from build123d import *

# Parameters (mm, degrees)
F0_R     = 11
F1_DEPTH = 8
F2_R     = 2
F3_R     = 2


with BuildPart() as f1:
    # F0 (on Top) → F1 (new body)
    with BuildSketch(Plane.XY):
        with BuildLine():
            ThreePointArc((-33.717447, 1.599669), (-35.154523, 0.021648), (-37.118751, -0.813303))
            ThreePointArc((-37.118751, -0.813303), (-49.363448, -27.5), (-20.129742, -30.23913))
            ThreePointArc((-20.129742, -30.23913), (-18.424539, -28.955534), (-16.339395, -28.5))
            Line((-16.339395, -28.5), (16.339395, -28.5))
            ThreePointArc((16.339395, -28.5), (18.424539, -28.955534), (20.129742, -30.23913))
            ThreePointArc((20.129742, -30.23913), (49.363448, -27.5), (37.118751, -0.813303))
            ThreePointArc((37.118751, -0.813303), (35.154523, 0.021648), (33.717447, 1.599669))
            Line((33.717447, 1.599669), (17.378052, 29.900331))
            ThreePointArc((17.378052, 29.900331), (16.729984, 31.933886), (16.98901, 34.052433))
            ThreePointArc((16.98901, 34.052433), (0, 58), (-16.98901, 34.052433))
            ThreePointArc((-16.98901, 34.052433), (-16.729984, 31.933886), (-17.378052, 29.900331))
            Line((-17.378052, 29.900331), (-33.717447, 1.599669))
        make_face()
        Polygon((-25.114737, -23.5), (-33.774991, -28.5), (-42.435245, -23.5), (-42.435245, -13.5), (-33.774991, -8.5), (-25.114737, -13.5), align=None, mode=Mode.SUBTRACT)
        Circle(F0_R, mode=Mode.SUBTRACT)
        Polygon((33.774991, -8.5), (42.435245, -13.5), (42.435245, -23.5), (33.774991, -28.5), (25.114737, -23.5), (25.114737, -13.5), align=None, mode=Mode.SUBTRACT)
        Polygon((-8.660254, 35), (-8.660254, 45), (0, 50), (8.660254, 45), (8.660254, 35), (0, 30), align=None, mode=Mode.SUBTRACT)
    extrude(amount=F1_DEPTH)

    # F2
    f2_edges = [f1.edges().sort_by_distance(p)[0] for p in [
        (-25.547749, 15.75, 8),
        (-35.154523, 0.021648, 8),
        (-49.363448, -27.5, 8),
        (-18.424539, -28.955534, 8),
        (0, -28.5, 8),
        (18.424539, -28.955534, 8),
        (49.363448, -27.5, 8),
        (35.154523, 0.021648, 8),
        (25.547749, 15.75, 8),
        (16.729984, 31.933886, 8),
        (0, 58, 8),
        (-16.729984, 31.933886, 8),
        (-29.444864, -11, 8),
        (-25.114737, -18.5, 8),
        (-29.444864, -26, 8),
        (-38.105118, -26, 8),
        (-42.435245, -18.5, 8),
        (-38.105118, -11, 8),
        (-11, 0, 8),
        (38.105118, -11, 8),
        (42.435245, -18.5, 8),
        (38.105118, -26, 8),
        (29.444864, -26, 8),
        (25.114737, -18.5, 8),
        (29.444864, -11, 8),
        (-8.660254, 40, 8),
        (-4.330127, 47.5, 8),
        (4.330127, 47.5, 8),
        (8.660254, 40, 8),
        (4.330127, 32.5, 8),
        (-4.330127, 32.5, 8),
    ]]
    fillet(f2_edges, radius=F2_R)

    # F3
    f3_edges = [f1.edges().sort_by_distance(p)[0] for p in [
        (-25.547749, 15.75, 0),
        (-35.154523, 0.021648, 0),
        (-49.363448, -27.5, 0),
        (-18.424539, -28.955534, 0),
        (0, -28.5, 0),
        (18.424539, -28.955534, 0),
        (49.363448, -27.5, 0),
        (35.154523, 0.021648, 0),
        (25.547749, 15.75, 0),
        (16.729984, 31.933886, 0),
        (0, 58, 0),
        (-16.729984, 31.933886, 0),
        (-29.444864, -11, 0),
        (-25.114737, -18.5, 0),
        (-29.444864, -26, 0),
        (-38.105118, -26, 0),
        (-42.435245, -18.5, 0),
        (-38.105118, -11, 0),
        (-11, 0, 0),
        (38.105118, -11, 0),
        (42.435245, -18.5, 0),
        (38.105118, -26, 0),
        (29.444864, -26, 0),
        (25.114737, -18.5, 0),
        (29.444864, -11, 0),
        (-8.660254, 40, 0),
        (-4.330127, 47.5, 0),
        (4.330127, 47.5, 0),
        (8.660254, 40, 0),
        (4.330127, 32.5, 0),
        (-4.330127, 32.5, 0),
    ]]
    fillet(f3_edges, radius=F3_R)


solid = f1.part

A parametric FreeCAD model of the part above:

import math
import FreeCAD as App
import Part
import Sketcher

V = App.Vector
Q = App.Units.Quantity


def edges_at(feature, points):
    """Names of the edges that pass closest to the given points."""
    edges = feature.Shape.Edges
    near = lambda p: min(range(len(edges)), key=lambda i: edges[i].distToShape(Part.Vertex(*p))[0])
    return sorted({f"Edge{near(p) + 1}" for p in points})

doc = App.newDocument("Part")
body = doc.addObject("PartDesign::Body", "Body")

# Sketch on XY plane
sketch1 = doc.addObject("Sketcher::SketchObject", "Sketch")
body.addObject(sketch1)
sketch1.AttachmentSupport = (doc.XY_Plane, [""])
sketch1.MapMode = "FlatFace"
sketch1.addGeometry([
    Part.ArcOfCircle(Part.Circle(V(-38, 4.1, 0), V(0, 0, 1), 5), math.radians(-79), math.radians(-30)),  # 0
    Part.ArcOfCircle(Part.Circle(V(-33.8, -18.5, 0), V(0, 0, 1), 18), math.radians(101), math.radians(319)),  # 1
    Part.ArcOfCircle(Part.Circle(V(-16.3, -33.5, 0), V(0, 0, 1), 5), math.radians(90), math.radians(139)),  # 2
    Part.LineSegment(V(-16.3, -28.5, 0), V(16.3, -28.5, 0)),  # 3
    Part.ArcOfCircle(Part.Circle(V(16.3, -33.5, 0), V(0, 0, 1), 5), math.radians(41), math.radians(90)),  # 4
    Part.ArcOfCircle(Part.Circle(V(33.8, -18.5, 0), V(0, 0, 1), 18), math.radians(-139), math.radians(79)),  # 5
    Part.ArcOfCircle(Part.Circle(V(38, 4.1, 0), V(0, 0, 1), 5), math.radians(-150), math.radians(-101)),  # 6
    Part.LineSegment(V(33.7, 1.6, 0), V(17.4, 29.9, 0)),  # 7
    Part.ArcOfCircle(Part.Circle(V(21.7, 32.4, 0), V(0, 0, 1), 5), math.radians(161), math.radians(210)),  # 8
    Part.ArcOfCircle(Part.Circle(V(0, 40, 0), V(0, 0, 1), 18), math.radians(-19), math.radians(199)),  # 9
    Part.ArcOfCircle(Part.Circle(V(-21.7, 32.4, 0), V(0, 0, 1), 5), math.radians(-30), math.radians(19)),  # 10
    Part.LineSegment(V(-17.4, 29.9, 0), V(-33.7, 1.6, 0)),  # 11
    Part.LineSegment(V(-25.1, -13.5, 0), V(-25.1, -23.5, 0)),  # 12
    Part.LineSegment(V(-25.1, -23.5, 0), V(-33.8, -28.5, 0)),  # 13
    Part.LineSegment(V(-33.8, -28.5, 0), V(-42.4, -23.5, 0)),  # 14
    Part.LineSegment(V(-42.4, -23.5, 0), V(-42.4, -13.5, 0)),  # 15
    Part.LineSegment(V(-42.4, -13.5, 0), V(-33.8, -8.5, 0)),  # 16
    Part.LineSegment(V(-33.8, -8.5, 0), V(-25.1, -13.5, 0)),  # 17
    Part.LineSegment(V(25.1, -13.5, 0), V(33.8, -8.5, 0)),  # 18
    Part.LineSegment(V(33.8, -8.5, 0), V(42.4, -13.5, 0)),  # 19
    Part.LineSegment(V(42.4, -13.5, 0), V(42.4, -23.5, 0)),  # 20
    Part.LineSegment(V(42.4, -23.5, 0), V(33.8, -28.5, 0)),  # 21
    Part.LineSegment(V(33.8, -28.5, 0), V(25.1, -23.5, 0)),  # 22
    Part.LineSegment(V(25.1, -23.5, 0), V(25.1, -13.5, 0)),  # 23
    Part.Circle(V(0, 0, 0), V(0, 0, 1), 11),  # 24
    Part.LineSegment(V(0, 30, 0), V(-8.7, 35, 0)),  # 25
    Part.LineSegment(V(-8.7, 35, 0), V(-8.7, 45, 0)),  # 26
    Part.LineSegment(V(-8.7, 45, 0), V(0, 50, 0)),  # 27
    Part.LineSegment(V(0, 50, 0), V(8.7, 45, 0)),  # 28
    Part.LineSegment(V(8.7, 45, 0), V(8.7, 35, 0)),  # 29
    Part.LineSegment(V(8.7, 35, 0), V(0, 30, 0)),  # 30
], False)
sketch1.addConstraint([
    Sketcher.Constraint("Tangent", 0, 1, 1, 1),
    Sketcher.Constraint("Tangent", 1, 2, 2, 2),
    Sketcher.Constraint("Tangent", 2, 1, 3, 1),
    Sketcher.Constraint("Tangent", 3, 2, 4, 2),
    Sketcher.Constraint("Tangent", 4, 1, 5, 1),
    Sketcher.Constraint("Tangent", 5, 2, 6, 2),
    Sketcher.Constraint("Tangent", 6, 1, 7, 1),
    Sketcher.Constraint("Tangent", 7, 2, 8, 2),
    Sketcher.Constraint("Tangent", 8, 1, 9, 1),
    Sketcher.Constraint("Tangent", 9, 2, 10, 2),
    Sketcher.Constraint("Tangent", 10, 1, 11, 1),
    Sketcher.Constraint("Tangent", 11, 2, 0, 2),
    Sketcher.Constraint("Coincident", 12, 2, 13, 1),
    Sketcher.Constraint("Coincident", 13, 2, 14, 1),
    Sketcher.Constraint("Coincident", 14, 2, 15, 1),
    Sketcher.Constraint("Coincident", 15, 2, 16, 1),
    Sketcher.Constraint("Coincident", 16, 2, 17, 1),
    Sketcher.Constraint("Coincident", 17, 2, 12, 1),
    Sketcher.Constraint("Coincident", 18, 2, 19, 1),
    Sketcher.Constraint("Coincident", 19, 2, 20, 1),
    Sketcher.Constraint("Coincident", 20, 2, 21, 1),
    Sketcher.Constraint("Coincident", 21, 2, 22, 1),
    Sketcher.Constraint("Coincident", 22, 2, 23, 1),
    Sketcher.Constraint("Coincident", 23, 2, 18, 1),
    Sketcher.Constraint("Coincident", 25, 2, 26, 1),
    Sketcher.Constraint("Coincident", 26, 2, 27, 1),
    Sketcher.Constraint("Coincident", 27, 2, 28, 1),
    Sketcher.Constraint("Coincident", 28, 2, 29, 1),
    Sketcher.Constraint("Coincident", 29, 2, 30, 1),
    Sketcher.Constraint("Coincident", 30, 2, 25, 1),
    Sketcher.Constraint("Horizontal", 3),
    Sketcher.Constraint("Vertical", 12),
    Sketcher.Constraint("Vertical", 15),
    Sketcher.Constraint("Vertical", 20),
    Sketcher.Constraint("Vertical", 23),
    Sketcher.Constraint("Vertical", 26),
    Sketcher.Constraint("Vertical", 29),
    Sketcher.Constraint("Coincident", 24, 3, -1, 1),
    Sketcher.Constraint("Equal", 0, 2),
    Sketcher.Constraint("Equal", 2, 4),
    Sketcher.Constraint("Equal", 1, 5),
    Sketcher.Constraint("Equal", 4, 6),
    Sketcher.Constraint("Equal", 6, 8),
    Sketcher.Constraint("Equal", 5, 9),
    Sketcher.Constraint("Equal", 8, 10),
    Sketcher.Constraint("Symmetric", 1, 3, 5, 3, -2),
    Sketcher.Constraint("Symmetric", 8, 3, 10, 3, -2),
    Sketcher.Constraint("Symmetric", 16, 2, 18, 2, -2),
    Sketcher.Constraint("Symmetric", 15, 2, 19, 2, -2),
    Sketcher.Constraint("Symmetric", 13, 2, 21, 2, -2),
    Sketcher.Constraint("Symmetric", 12, 2, 22, 2, -2),
    Sketcher.Constraint("Symmetric", 26, 2, 28, 2, -2),
    Sketcher.Constraint("PointOnObject", 27, 2, -2),
    Sketcher.Constraint("PointOnObject", 30, 2, -2),
    Sketcher.Constraint("Perpendicular", 7, 13),
    Sketcher.Constraint("Perpendicular", 11, 14),
    Sketcher.Constraint("Parallel", 13, 16),
    Sketcher.Constraint("Parallel", 14, 17),
    Sketcher.Constraint("Parallel", 16, 18),
    Sketcher.Constraint("Parallel", 17, 19),
    Sketcher.Constraint("Parallel", 18, 21),
    Sketcher.Constraint("Parallel", 22, 25),
    Sketcher.Constraint("Parallel", 21, 27),
    Sketcher.Constraint("Parallel", 27, 30),
    Sketcher.Constraint("Horizontal", 3, 2, 13, 2),
    Sketcher.Constraint("Horizontal", 12, 2, 14, 2),
    Sketcher.Constraint("Horizontal", 15, 2, 17, 2),
    Sketcher.Constraint("Vertical", 1, 3, 13, 2),
    Sketcher.Constraint("Equal", 23, 26),
    Sketcher.Constraint("Equal", 22, 25),
    Sketcher.Constraint("Diameter", 24, Q("22 mm")),
    Sketcher.Constraint("Radius", 1, Q("18 mm")),
    Sketcher.Constraint("Radius", 8, Q("5.000002 mm")),
    Sketcher.Constraint("DistanceY", 12, 2, 12, 1, Q("10 mm")),
    Sketcher.Constraint("Angle", 7, Q("120 deg")),
    Sketcher.Constraint("Distance", 13, Q("10 mm")),
    Sketcher.Constraint("DistanceY", -1, 1, 9, 3, Q("40 mm")),
    Sketcher.Constraint("DistanceY", -1, 1, 25, 2, Q("35 mm")),
    Sketcher.Constraint("DistanceY", 2, 1, 1, 3, Q("10 mm")),
    Sketcher.Constraint("DistanceY", 1, 3, -1, 1, Q("18.5 mm")),
    Sketcher.Constraint("DistanceX", 3, 1, 3, 2, Q("32.67879 mm")),
    Sketcher.Constraint("DistanceX", 15, 2, 11, 2, Q("8.717798 mm")),
])
pad1 = doc.addObject("PartDesign::Pad", "Pad")
body.addObject(pad1)
pad1.Profile = sketch1
pad1.Length = 8
doc.recompute()

fillet = doc.addObject("PartDesign::Fillet", "Fillet")
body.addObject(fillet)
fillet.Base = (pad1, edges_at(pad1, [
    (-25.548, 15.75, 8),
    (-35.155, 0.022, 8),
    (-49.363, -27.5, 8),
    (-18.425, -28.956, 8),
    (0, -28.5, 8),
    (18.425, -28.956, 8),
    (49.363, -27.5, 8),
    (35.155, 0.022, 8),
    (25.548, 15.75, 8),
    (16.73, 31.934, 8),
    (0, 58, 8),
    (-16.73, 31.934, 8),
    (-29.445, -11, 8),
    (-25.115, -18.5, 8),
    (-29.445, -26, 8),
    (-38.105, -26, 8),
    (-42.435, -18.5, 8),
    (-38.105, -11, 8),
    (-11, 0, 8),
    (38.105, -11, 8),
    (42.435, -18.5, 8),
    (38.105, -26, 8),
    (29.445, -26, 8),
    (25.115, -18.5, 8),
    (29.445, -11, 8),
    (-8.66, 40, 8),
    (-4.33, 47.5, 8),
    (4.33, 47.5, 8),
    (8.66, 40, 8),
    (4.33, 32.5, 8),
    (-4.33, 32.5, 8),
]))
fillet.Radius = 2
doc.recompute()

fillet2 = doc.addObject("PartDesign::Fillet", "Fillet001")
body.addObject(fillet2)
fillet2.Base = (fillet, edges_at(fillet, [
    (-25.548, 15.75, 0),
    (-35.155, 0.022, 0),
    (-49.363, -27.5, 0),
    (-18.425, -28.956, 0),
    (0, -28.5, 0),
    (18.425, -28.956, 0),
    (49.363, -27.5, 0),
    (35.155, 0.022, 0),
    (25.548, 15.75, 0),
    (16.73, 31.934, 0),
    (0, 58, 0),
    (-16.73, 31.934, 0),
    (-29.445, -11, 0),
    (-25.115, -18.5, 0),
    (-29.445, -26, 0),
    (-38.105, -26, 0),
    (-42.435, -18.5, 0),
    (-38.105, -11, 0),
    (-11, 0, 0),
    (38.105, -11, 0),
    (42.435, -18.5, 0),
    (38.105, -26, 0),
    (29.445, -26, 0),
    (25.115, -18.5, 0),
    (29.445, -11, 0),
    (-8.66, 40, 0),
    (-4.33, 47.5, 0),
    (4.33, 47.5, 0),
    (8.66, 40, 0),
    (4.33, 32.5, 0),
    (-4.33, 32.5, 0),
]))
fillet2.Radius = 2

doc.recompute()
